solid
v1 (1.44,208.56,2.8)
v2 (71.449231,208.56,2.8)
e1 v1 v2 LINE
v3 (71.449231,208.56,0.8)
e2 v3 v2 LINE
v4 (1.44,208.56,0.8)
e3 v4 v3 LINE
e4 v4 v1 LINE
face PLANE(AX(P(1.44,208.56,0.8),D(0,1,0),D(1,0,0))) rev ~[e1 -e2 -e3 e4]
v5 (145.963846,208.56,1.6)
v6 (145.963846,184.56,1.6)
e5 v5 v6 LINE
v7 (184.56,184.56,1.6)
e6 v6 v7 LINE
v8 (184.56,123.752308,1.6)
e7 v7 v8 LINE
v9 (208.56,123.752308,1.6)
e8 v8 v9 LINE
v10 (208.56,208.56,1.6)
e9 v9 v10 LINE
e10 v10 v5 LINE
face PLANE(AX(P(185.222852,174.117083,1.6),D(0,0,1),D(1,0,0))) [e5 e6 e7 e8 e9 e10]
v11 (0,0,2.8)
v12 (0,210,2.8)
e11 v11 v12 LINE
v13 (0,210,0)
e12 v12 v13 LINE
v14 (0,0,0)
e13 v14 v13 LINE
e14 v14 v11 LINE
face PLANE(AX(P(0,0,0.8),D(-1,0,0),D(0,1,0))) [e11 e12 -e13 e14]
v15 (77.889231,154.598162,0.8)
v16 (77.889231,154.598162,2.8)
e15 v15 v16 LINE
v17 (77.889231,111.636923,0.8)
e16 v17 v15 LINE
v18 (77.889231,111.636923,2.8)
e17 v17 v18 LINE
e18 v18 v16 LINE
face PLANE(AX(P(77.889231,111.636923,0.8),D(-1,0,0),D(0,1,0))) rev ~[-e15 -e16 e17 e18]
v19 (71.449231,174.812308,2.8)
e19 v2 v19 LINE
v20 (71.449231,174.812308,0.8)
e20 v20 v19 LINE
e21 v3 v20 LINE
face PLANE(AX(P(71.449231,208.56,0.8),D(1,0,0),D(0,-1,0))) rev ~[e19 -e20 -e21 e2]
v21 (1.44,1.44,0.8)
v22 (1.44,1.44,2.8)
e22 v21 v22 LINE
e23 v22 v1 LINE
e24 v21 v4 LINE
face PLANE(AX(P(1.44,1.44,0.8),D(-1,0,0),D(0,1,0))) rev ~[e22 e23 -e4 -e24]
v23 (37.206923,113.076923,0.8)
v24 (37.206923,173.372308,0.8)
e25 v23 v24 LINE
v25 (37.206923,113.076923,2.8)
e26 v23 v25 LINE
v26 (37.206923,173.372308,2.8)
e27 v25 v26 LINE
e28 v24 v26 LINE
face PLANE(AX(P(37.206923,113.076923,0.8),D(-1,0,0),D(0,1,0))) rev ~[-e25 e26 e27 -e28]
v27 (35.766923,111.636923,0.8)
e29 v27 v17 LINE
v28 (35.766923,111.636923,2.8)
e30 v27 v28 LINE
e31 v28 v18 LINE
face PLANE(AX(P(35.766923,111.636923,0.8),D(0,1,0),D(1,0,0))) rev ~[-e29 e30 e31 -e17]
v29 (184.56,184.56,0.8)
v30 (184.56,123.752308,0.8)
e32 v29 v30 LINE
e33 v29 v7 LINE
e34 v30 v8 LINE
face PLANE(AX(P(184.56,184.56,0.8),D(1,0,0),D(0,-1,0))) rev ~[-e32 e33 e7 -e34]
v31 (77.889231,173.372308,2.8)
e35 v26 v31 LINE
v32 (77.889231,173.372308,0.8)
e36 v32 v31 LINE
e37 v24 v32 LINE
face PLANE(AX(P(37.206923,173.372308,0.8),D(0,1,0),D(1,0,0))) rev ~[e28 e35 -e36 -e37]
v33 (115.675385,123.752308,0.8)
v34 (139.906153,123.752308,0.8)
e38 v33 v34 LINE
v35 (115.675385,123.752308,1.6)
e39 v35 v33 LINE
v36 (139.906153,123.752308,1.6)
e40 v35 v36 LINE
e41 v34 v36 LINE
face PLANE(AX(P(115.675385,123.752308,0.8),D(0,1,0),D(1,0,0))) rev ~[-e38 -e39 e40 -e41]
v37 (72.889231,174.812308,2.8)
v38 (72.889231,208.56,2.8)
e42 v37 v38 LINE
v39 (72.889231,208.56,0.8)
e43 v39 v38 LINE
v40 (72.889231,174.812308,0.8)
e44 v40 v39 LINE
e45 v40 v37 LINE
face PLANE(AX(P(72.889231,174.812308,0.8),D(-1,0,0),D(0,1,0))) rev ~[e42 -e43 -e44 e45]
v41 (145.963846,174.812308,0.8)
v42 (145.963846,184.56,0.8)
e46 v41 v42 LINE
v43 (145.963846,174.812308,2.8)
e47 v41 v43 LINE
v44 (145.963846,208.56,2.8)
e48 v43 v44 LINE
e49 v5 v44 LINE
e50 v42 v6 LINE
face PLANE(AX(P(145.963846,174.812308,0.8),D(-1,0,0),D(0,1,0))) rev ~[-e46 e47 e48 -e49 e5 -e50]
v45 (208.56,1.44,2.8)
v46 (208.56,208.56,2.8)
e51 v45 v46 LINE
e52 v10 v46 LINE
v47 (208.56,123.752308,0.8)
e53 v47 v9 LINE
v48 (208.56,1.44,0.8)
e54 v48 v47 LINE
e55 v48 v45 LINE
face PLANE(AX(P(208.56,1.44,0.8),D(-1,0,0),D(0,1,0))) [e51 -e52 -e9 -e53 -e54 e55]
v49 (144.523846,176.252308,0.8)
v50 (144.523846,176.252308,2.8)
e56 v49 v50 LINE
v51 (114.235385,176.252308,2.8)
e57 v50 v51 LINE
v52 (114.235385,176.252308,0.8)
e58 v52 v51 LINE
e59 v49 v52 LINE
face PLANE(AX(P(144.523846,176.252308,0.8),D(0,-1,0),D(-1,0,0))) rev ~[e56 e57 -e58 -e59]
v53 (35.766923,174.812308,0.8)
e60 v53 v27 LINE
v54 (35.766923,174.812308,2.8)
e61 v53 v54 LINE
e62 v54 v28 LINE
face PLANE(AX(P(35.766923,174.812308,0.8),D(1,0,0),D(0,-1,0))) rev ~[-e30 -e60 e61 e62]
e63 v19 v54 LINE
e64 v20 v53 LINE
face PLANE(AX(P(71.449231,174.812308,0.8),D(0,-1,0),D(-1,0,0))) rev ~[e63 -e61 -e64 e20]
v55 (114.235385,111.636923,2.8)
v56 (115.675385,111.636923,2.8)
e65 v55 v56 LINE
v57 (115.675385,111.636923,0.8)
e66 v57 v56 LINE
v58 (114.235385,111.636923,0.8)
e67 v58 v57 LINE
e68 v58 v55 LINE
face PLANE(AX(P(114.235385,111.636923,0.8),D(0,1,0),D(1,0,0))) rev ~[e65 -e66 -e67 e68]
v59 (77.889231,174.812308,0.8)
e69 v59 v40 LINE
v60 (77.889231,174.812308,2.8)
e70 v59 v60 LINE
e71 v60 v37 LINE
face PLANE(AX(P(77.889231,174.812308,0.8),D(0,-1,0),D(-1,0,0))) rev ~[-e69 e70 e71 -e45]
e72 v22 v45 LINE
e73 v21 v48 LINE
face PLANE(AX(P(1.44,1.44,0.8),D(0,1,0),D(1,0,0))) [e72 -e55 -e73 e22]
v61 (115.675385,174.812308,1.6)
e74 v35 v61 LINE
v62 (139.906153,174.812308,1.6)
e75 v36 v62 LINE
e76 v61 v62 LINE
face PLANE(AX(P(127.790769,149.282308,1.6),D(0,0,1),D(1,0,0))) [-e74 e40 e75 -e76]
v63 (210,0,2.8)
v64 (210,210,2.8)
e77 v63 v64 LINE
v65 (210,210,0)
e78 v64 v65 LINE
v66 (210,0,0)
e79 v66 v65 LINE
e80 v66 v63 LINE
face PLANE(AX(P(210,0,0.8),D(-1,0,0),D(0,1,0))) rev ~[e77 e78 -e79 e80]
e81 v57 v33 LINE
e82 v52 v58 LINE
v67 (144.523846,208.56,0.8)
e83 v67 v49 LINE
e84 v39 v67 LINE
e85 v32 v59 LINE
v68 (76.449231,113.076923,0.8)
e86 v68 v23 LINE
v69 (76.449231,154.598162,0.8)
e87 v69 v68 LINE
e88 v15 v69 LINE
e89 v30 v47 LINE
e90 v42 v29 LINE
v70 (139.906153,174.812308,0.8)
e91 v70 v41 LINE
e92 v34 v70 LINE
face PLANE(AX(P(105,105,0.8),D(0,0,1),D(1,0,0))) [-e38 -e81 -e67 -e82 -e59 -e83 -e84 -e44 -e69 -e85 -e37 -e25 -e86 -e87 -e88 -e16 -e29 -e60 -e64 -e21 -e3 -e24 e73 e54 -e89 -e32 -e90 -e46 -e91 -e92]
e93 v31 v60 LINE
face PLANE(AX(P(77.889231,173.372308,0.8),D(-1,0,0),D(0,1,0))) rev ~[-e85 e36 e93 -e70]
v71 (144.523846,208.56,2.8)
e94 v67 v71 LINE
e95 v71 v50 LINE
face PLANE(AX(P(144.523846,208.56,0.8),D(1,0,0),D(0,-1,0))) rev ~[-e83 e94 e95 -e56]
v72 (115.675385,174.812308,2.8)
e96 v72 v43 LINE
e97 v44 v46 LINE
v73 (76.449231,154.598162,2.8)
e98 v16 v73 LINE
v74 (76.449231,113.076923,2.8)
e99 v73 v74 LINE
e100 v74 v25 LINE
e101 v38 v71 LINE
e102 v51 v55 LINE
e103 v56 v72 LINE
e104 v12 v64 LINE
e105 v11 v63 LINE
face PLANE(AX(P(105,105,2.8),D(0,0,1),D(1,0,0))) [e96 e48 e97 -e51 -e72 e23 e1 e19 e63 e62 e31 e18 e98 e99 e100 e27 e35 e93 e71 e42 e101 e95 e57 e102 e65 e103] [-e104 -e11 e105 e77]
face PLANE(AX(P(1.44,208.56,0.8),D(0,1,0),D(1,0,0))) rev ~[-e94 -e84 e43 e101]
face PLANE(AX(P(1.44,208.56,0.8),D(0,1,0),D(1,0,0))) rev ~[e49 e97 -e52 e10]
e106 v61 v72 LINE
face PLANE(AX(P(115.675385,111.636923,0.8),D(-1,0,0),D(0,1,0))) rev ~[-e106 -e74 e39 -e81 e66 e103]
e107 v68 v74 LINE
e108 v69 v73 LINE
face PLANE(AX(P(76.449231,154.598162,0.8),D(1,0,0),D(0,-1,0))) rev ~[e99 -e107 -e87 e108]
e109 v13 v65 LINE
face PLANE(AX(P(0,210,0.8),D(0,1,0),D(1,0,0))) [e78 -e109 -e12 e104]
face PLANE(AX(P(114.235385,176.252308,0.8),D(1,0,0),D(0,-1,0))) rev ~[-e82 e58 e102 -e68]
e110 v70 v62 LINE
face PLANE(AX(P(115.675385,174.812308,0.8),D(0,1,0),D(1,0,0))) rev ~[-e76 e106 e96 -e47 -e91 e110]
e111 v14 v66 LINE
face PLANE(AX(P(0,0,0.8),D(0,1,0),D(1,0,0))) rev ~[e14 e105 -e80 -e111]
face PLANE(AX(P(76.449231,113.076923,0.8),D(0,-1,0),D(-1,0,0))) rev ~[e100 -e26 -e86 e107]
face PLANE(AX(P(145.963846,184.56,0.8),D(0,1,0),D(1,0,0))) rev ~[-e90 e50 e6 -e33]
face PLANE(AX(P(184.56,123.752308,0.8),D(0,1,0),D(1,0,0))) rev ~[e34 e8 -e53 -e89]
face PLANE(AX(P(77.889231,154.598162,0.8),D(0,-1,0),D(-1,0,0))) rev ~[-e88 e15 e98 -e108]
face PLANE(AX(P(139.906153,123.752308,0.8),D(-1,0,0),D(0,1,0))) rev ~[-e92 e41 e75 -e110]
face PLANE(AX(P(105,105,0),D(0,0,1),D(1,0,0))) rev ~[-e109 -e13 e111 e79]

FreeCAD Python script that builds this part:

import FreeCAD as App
import Part
import Sketcher

V = App.Vector

doc = App.newDocument("Part")
body = doc.addObject("PartDesign::Body", "Body")

sketch1 = body.newObject("Sketcher::SketchObject", "Sketch")
sketch1.AttachmentSupport = (doc.getObject("XY_Plane"), [""])
sketch1.MapMode = "FlatFace"
sketch1.addGeometry([
    Part.LineSegment(V(0, 210, 0), V(0, 0, 0)),
    Part.LineSegment(V(0, 0, 0), V(210, 0, 0)),
    Part.LineSegment(V(210, 0, 0), V(210, 210, 0)),
    Part.LineSegment(V(210, 210, 0), V(0, 210, 0)),
], False)
sketch1.addConstraint([
    Sketcher.Constraint("Coincident", 0, 2, 1, 1),
    Sketcher.Constraint("Coincident", 1, 2, 2, 1),
    Sketcher.Constraint("Coincident", 2, 2, 3, 1),
    Sketcher.Constraint("Coincident", 3, 2, 0, 1),
    Sketcher.Constraint("Vertical", 0),
    Sketcher.Constraint("Horizontal", 1),
    Sketcher.Constraint("Vertical", 2),
    Sketcher.Constraint("Horizontal", 3),
    Sketcher.Constraint("Coincident", 0, 2, -1, 1),
    Sketcher.Constraint("Equal", 3, 0),
    Sketcher.Constraint("DistanceX", 1, 1, 1, 2, 210.0),
])
pad1 = body.newObject("PartDesign::Pad", "Pad")
pad1.Profile = sketch1
pad1.Length = 0.8

sketch2 = body.newObject("Sketcher::SketchObject", "Sketch001")
sketch2.AttachmentSupport = (doc.getObject("XY_Plane"), [""])
sketch2.MapMode = "FlatFace"
sketch2.AttachmentOffset = App.Placement(V(0, 0, 0.8), App.Rotation())
sketch2.addGeometry([
    Part.LineSegment(V(0, 210, 0), V(0, 0, 0)),
    Part.LineSegment(V(0, 0, 0), V(210, 0, 0)),
    Part.LineSegment(V(210, 0, 0), V(210, 210, 0)),
    Part.LineSegment(V(210, 210, 0), V(0, 210, 0)),
    Part.LineSegment(V(209, 1, 0), V(1, 1, 0)),
    Part.LineSegment(V(1, 1, 0), V(1, 209, 0)),
    Part.LineSegment(V(1, 209, 0), V(209, 209, 0)),
    Part.LineSegment(V(209, 209, 0), V(209, 1, 0)),
], False)
sketch2.addConstraint([
    Sketcher.Constraint("Coincident", 0, 2, 1, 1),
    Sketcher.Constraint("Coincident", 1, 2, 2, 1),
    Sketcher.Constraint("Coincident", 2, 2, 3, 1),
    Sketcher.Constraint("Coincident", 3, 2, 0, 1),
    Sketcher.Constraint("Coincident", 4, 2, 5, 1),
    Sketcher.Constraint("Coincident", 5, 2, 6, 1),
    Sketcher.Constraint("Coincident", 6, 2, 7, 1),
    Sketcher.Constraint("Coincident", 7, 2, 4, 1),
    Sketcher.Constraint("Vertical", 0),
    Sketcher.Constraint("Horizontal", 1),
    Sketcher.Constraint("Vertical", 2),
    Sketcher.Constraint("Horizontal", 3),
    Sketcher.Constraint("Horizontal", 4),
    Sketcher.Constraint("Vertical", 5),
    Sketcher.Constraint("Horizontal", 6),
    Sketcher.Constraint("Vertical", 7),
    Sketcher.Constraint("Coincident", 0, 2, -1, 1),
    Sketcher.Constraint("Equal", 3, 0),
    Sketcher.Constraint("Equal", 6, 5),
    Sketcher.Constraint("DistanceX", 1, 1, 1, 2, 210.0),
    Sketcher.Constraint("DistanceX", 4, 2, 4, 1, 207.12),
    Sketcher.Constraint("DistanceX", -1, 1, 4, 2, 1.44),
    Sketcher.Constraint("DistanceY", -1, 1, 4, 2, 1.44),
])
pad2 = body.newObject("PartDesign::Pad", "Pad001")
pad2.Profile = sketch2
pad2.Length = 2

sketch3 = body.newObject("Sketcher::SketchObject", "Sketch002")
sketch3.AttachmentSupport = (doc.getObject("XY_Plane"), [""])
sketch3.MapMode = "FlatFace"
sketch3.AttachmentOffset = App.Placement(V(0, 0, 0.8), App.Rotation())
sketch3.addGeometry([
    Part.LineSegment(V(146, 174.8, 0), V(146, 208.6, 0)),
    Part.LineSegment(V(146, 208.6, 0), V(144.5, 208.6, 0)),
    Part.LineSegment(V(144.5, 208.6, 0), V(144.5, 176.3, 0)),
    Part.LineSegment(V(144.5, 176.3, 0), V(114.2, 176.3, 0)),
    Part.LineSegment(V(114.2, 176.3, 0), V(114.2, 111.6, 0)),
    Part.LineSegment(V(114.2, 111.6, 0), V(115.7, 111.6, 0)),
    Part.LineSegment(V(115.7, 111.6, 0), V(115.7, 174.8, 0)),
    Part.LineSegment(V(115.7, 174.8, 0), V(146, 174.8, 0)),
    Part.LineSegment(V(72.9, 174.8, 0), V(72.9, 208.6, 0)),
    Part.LineSegment(V(72.9, 208.6, 0), V(71.4, 208.6, 0)),
    Part.LineSegment(V(71.4, 208.6, 0), V(71.4, 174.8, 0)),
    Part.LineSegment(V(71.4, 174.8, 0), V(35.8, 174.8, 0)),
    Part.LineSegment(V(35.8, 174.8, 0), V(35.8, 111.6, 0)),
    Part.LineSegment(V(35.8, 111.6, 0), V(77.9, 111.6, 0)),
    Part.LineSegment(V(77.9, 111.6, 0), V(77.9, 154.6, 0)),
    Part.LineSegment(V(77.9, 154.6, 0), V(76.4, 154.6, 0)),
    Part.LineSegment(V(76.4, 154.6, 0), V(76.4, 113.1, 0)),
    Part.LineSegment(V(76.4, 113.1, 0), V(37.2, 113.1, 0)),
    Part.LineSegment(V(37.2, 113.1, 0), V(37.2, 173.4, 0)),
    Part.LineSegment(V(37.2, 173.4, 0), V(77.9, 173.4, 0)),
    Part.LineSegment(V(77.9, 173.4, 0), V(77.9, 174.8, 0)),
    Part.LineSegment(V(77.9, 174.8, 0), V(72.9, 174.8, 0)),
], False)
sketch3.addConstraint([
    Sketcher.Constraint("Coincident", 0, 2, 1, 1),
    Sketcher.Constraint("Coincident", 1, 2, 2, 1),
    Sketcher.Constraint("Coincident", 2, 2, 3, 1),
    Sketcher.Constraint("Coincident", 3, 2, 4, 1),
    Sketcher.Constraint("Coincident", 4, 2, 5, 1),
    Sketcher.Constraint("Coincident", 5, 2, 6, 1),
    Sketcher.Constraint("Coincident", 6, 2, 7, 1),
    Sketcher.Constraint("Coincident", 7, 2, 0, 1),
    Sketcher.Constraint("Coincident", 8, 2, 9, 1),
    Sketcher.Constraint("Coincident", 9, 2, 10, 1),
    Sketcher.Constraint("Coincident", 10, 2, 11, 1),
    Sketcher.Constraint("Coincident", 11, 2, 12, 1),
    Sketcher.Constraint("Coincident", 12, 2, 13, 1),
    Sketcher.Constraint("Coincident", 13, 2, 14, 1),
    Sketcher.Constraint("Coincident", 14, 2, 15, 1),
    Sketcher.Constraint("Coincident", 15, 2, 16, 1),
    Sketcher.Constraint("Coincident", 16, 2, 17, 1),
    Sketcher.Constraint("Coincident", 17, 2, 18, 1),
    Sketcher.Constraint("Coincident", 18, 2, 19, 1),
    Sketcher.Constraint("Coincident", 19, 2, 20, 1),
    Sketcher.Constraint("Coincident", 20, 2, 21, 1),
    Sketcher.Constraint("Coincident", 21, 2, 8, 1),
    Sketcher.Constraint("Vertical", 0),
    Sketcher.Constraint("Horizontal", 1),
    Sketcher.Constraint("Vertical", 2),
    Sketcher.Constraint("Horizontal", 3),
    Sketcher.Constraint("Vertical", 4),
    Sketcher.Constraint("Horizontal", 5),
    Sketcher.Constraint("Vertical", 6),
    Sketcher.Constraint("Horizontal", 7),
    Sketcher.Constraint("Vertical", 8),
    Sketcher.Constraint("Horizontal", 9),
    Sketcher.Constraint("Vertical", 10),
    Sketcher.Constraint("Horizontal", 11),
    Sketcher.Constraint("Vertical", 12),
    Sketcher.Constraint("Horizontal", 13),
    Sketcher.Constraint("Vertical", 14),
    Sketcher.Constraint("Horizontal", 15),
    Sketcher.Constraint("Vertical", 16),
    Sketcher.Constraint("Horizontal", 17),
    Sketcher.Constraint("Vertical", 18),
    Sketcher.Constraint("Horizontal", 19),
    Sketcher.Constraint("Vertical", 20),
    Sketcher.Constraint("Horizontal", 21),
    Sketcher.Constraint("Horizontal", 1, 2, 8, 2),
    Sketcher.Constraint("Horizontal", 7, 2, 10, 2),
    Sketcher.Constraint("Horizontal", 5, 2, 12, 2),
    Sketcher.Constraint("Horizontal", 11, 2, 20, 2),
    Sketcher.Constraint("Vertical", 14, 2, 19, 2),
    Sketcher.Constraint("Equal", 1, 5),
    Sketcher.Constraint("Equal", 5, 9),
    Sketcher.Constraint("Equal", 9, 15),
    Sketcher.Constraint("Equal", 15, 20),
    Sketcher.Constraint("DistanceX", 21, 2, 21, 1, 5.0),
    Sketcher.Constraint("DistanceX", 1, 2, 1, 1, 1.44),
    Sketcher.Constraint("DistanceY", -1, 1, 0, 2, 208.56),
    Sketcher.Constraint("DistanceY", 6, 2, 3, 2, 1.44),
    Sketcher.Constraint("DistanceY", 13, 2, 16, 2, 1.44),
    Sketcher.Constraint("DistanceX", 12, 2, 17, 2, 1.44),
    Sketcher.Constraint("DistanceX", 3, 2, 3, 1, 30.288461),
    Sketcher.Constraint("DistanceY", 14, 1, 14, 2, 42.961239),
    Sketcher.Constraint("DistanceX", 11, 2, 11, 1, 35.682308),
    Sketcher.Constraint("DistanceY", 0, 1, 0, 2, 33.747692),
    Sketcher.Constraint("DistanceY", 4, 2, 4, 1, 64.615385),
    Sketcher.Constraint("DistanceX", -1, 1, 8, 2, 72.889231),
    Sketcher.Constraint("DistanceX", 11, 2, 3, 2, 78.468462),
])
pad3 = body.newObject("PartDesign::Pad", "Pad002")
pad3.Profile = sketch3
pad3.Length = 2

sketch4 = body.newObject("Sketcher::SketchObject", "Sketch003")
sketch4.AttachmentSupport = (doc.getObject("XY_Plane"), [""])
sketch4.MapMode = "FlatFace"
sketch4.AttachmentOffset = App.Placement(V(0, 0, 0.8), App.Rotation())
sketch4.addGeometry([
    Part.LineSegment(V(209, 209, 0), V(146, 209, 0)),
    Part.LineSegment(V(146, 209, 0), V(146, 185, 0)),
    Part.LineSegment(V(146, 185, 0), V(185, 185, 0)),
    Part.LineSegment(V(185, 185, 0), V(185, 124, 0)),
    Part.LineSegment(V(185, 124, 0), V(209, 124, 0)),
    Part.LineSegment(V(209, 124, 0), V(209, 209, 0)),
    Part.LineSegment(V(116, 175, 0), V(116, 124, 0)),
    Part.LineSegment(V(116, 124, 0), V(140, 124, 0)),
    Part.LineSegment(V(140, 124, 0), V(140, 175, 0)),
    Part.LineSegment(V(140, 175, 0), V(116, 175, 0)),
], False)
sketch4.addConstraint([
    Sketcher.Constraint("Coincident", 0, 2, 1, 1),
    Sketcher.Constraint("Coincident", 1, 2, 2, 1),
    Sketcher.Constraint("Coincident", 2, 2, 3, 1),
    Sketcher.Constraint("Coincident", 3, 2, 4, 1),
    Sketcher.Constraint("Coincident", 4, 2, 5, 1),
    Sketcher.Constraint("Coincident", 5, 2, 0, 1),
    Sketcher.Constraint("Coincident", 6, 2, 7, 1),
    Sketcher.Constraint("Coincident", 7, 2, 8, 1),
    Sketcher.Constraint("Coincident", 8, 2, 9, 1),
    Sketcher.Constraint("Coincident", 9, 2, 6, 1),
    Sketcher.Constraint("Horizontal", 0),
    Sketcher.Constraint("Vertical", 1),
    Sketcher.Constraint("Horizontal", 2),
    Sketcher.Constraint("Vertical", 3),
    Sketcher.Constraint("Horizontal", 4),
    Sketcher.Constraint("Vertical", 5),
    Sketcher.Constraint("Vertical", 6),
    Sketcher.Constraint("Horizontal", 7),
    Sketcher.Constraint("Vertical", 8),
    Sketcher.Constraint("Horizontal", 9),
    Sketcher.Constraint("Horizontal", 4, 2, 6, 2),
    Sketcher.Constraint("Equal", 4, 1),
    Sketcher.Constraint("DistanceX", 4, 1, 4, 2, 24.0),
    Sketcher.Constraint("DistanceY", 6, 2, 6, 1, 51.06),
    Sketcher.Constraint("DistanceY", -1, 1, 0, 2, 208.56),
    Sketcher.Constraint("DistanceX", -1, 1, 2, 2, 184.56),
    Sketcher.Constraint("DistanceX", 7, 1, 7, 2, 24.230769),
    Sketcher.Constraint("DistanceX", 0, 2, 0, 1, 62.596154),
    Sketcher.Constraint("DistanceY", 3, 2, 3, 1, 60.807692),
    Sketcher.Constraint("DistanceX", 6, 2, 1, 2, 30.288461),
])
pad4 = body.newObject("PartDesign::Pad", "Pad003")
pad4.Profile = sketch4
pad4.Length = 0.8

doc.recompute()
